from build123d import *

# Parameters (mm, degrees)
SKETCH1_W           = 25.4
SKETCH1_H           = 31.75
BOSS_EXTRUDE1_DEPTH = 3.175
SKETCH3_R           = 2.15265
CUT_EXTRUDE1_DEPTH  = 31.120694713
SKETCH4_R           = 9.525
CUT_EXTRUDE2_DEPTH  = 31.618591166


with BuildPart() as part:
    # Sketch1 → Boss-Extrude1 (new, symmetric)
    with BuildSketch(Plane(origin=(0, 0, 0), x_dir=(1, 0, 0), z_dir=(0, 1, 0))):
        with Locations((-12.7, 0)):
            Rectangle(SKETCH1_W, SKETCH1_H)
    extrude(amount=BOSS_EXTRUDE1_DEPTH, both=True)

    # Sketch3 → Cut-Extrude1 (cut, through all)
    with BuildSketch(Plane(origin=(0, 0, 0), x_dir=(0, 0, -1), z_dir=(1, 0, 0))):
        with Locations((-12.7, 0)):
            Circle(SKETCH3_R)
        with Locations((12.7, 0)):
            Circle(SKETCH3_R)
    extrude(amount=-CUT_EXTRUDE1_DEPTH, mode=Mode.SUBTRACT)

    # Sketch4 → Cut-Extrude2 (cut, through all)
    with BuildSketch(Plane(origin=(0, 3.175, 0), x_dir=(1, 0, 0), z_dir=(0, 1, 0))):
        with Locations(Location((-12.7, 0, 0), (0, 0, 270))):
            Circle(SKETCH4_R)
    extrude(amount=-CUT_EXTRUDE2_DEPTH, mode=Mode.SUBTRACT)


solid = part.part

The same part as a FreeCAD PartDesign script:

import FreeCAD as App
import Part
import Sketcher

V = App.Vector
Q = App.Units.Quantity


def add_polygon(sketch, points):
    """Adds a closed chain of lines whose ends are joined by coincident constraints."""
    first, n = sketch.GeometryCount, len(points)
    for a, b in zip(points, points[1:] + points[:1]):
        sketch.addGeometry(Part.LineSegment(App.Vector(*a, 0), App.Vector(*b, 0)), False)
    for i in range(n):
        sketch.addConstraint(Sketcher.Constraint("Coincident", first + i, 2, first + (i + 1) % n, 1))

doc = App.newDocument("Part")
params = doc.addObject("Spreadsheet::Sheet", "Params")
for row, (alias, value) in enumerate([
    ("sketch1_width", "1 in"),
    ("sketch1_height", "1.25 in"),
    ("pad1_length", "0.25 in"),
    ("sketch3_diameter", "0.75 in"),
], start=1):
    params.set(f"A{row}", alias)
    params.set(f"B{row}", "=" + value)
    params.setAlias(f"B{row}", alias)

body = doc.addObject("PartDesign::Body", "Body")

# Sketch on XZ plane
sketch1 = body.newObject("Sketcher::SketchObject", "Sketch")
sketch1.AttachmentSupport = (doc.getObject("XZ_Plane"), [""])
sketch1.MapMode = "FlatFace"
add_polygon(sketch1, [(-25, -16), (-25, 16), (0, 16), (0, -16)])  # lines 0-3
sketch1.addConstraint([
    Sketcher.Constraint("Vertical", 0),
    Sketcher.Constraint("Horizontal", 1),
    Sketcher.Constraint("Vertical", 2),
    Sketcher.Constraint("Horizontal", 3),
    Sketcher.Constraint("Symmetric", 1, 2, 2, 2, -1, 1),
    Sketcher.Constraint("DistanceX", 1, 1, 1, 2, Q("1 in")),
    Sketcher.Constraint("DistanceY", 0, 1, 0, 2, Q("1.25 in")),
])
sketch1.setExpression("Constraints[9]", "Params.sketch1_width")
sketch1.setExpression("Constraints[10]", "Params.sketch1_height")
pad1 = body.newObject("PartDesign::Pad", "Pad")
pad1.Profile = sketch1
pad1.setExpression("Length", "Params.pad1_length")
pad1.Midplane = True

# Sketch on YZ plane
sketch2 = body.newObject("Sketcher::SketchObject", "Sketch001")
sketch2.AttachmentSupport = (doc.getObject("YZ_Plane"), [""])
sketch2.MapMode = "FlatFace"
sketch2.addGeometry([
    Part.Circle(V(0, 12.7, 0), V(0, 0, 1), 2.2),
    Part.Circle(V(0, -12.7, 0), V(0, 0, 1), 2.2),
], False)
sketch2.addConstraint([
    Sketcher.Constraint("Equal", 0, 1),
    Sketcher.Constraint("Symmetric", 0, 3, 1, 3, -1, 1),
    Sketcher.Constraint("PointOnObject", 0, 3, -2),
    Sketcher.Constraint("DistanceY", 1, 3, 0, 3, Q("1 in")),
    Sketcher.Constraint("Diameter", 0, Q("0.1695 in")),
])
pocket1 = body.newObject("PartDesign::Pocket", "Pocket")
pocket1.Profile = sketch2
pocket1.Type = "ThroughAll"

# Sketch on XZ plane
sketch3 = body.newObject("Sketcher::SketchObject", "Sketch002")
sketch3.AttachmentSupport = (doc.getObject("XZ_Plane"), [""])
sketch3.MapMode = "FlatFace"
sketch3.AttachmentOffset = App.Placement(V(0, 0, -0.125 * 25.4), App.Rotation())
sketch3.addGeometry(Part.Circle(V(-13, 0, 0), V(0, 0, 1), 10), False)
sketch3.addConstraint([
    Sketcher.Constraint("PointOnObject", 0, 3, -1),
    Sketcher.Constraint("Diameter", 0, Q("0.75 in")),
    Sketcher.Constraint("DistanceX", 0, 3, -1, 1, Q("0.5 in")),
])
sketch3.setExpression("Constraints[1]", "Params.sketch3_diameter")
pocket2 = body.newObject("PartDesign::Pocket", "Pocket001")
pocket2.Profile = sketch3
pocket2.Type = "ThroughAll"
pocket2.Reversed = True

doc.recompute()
